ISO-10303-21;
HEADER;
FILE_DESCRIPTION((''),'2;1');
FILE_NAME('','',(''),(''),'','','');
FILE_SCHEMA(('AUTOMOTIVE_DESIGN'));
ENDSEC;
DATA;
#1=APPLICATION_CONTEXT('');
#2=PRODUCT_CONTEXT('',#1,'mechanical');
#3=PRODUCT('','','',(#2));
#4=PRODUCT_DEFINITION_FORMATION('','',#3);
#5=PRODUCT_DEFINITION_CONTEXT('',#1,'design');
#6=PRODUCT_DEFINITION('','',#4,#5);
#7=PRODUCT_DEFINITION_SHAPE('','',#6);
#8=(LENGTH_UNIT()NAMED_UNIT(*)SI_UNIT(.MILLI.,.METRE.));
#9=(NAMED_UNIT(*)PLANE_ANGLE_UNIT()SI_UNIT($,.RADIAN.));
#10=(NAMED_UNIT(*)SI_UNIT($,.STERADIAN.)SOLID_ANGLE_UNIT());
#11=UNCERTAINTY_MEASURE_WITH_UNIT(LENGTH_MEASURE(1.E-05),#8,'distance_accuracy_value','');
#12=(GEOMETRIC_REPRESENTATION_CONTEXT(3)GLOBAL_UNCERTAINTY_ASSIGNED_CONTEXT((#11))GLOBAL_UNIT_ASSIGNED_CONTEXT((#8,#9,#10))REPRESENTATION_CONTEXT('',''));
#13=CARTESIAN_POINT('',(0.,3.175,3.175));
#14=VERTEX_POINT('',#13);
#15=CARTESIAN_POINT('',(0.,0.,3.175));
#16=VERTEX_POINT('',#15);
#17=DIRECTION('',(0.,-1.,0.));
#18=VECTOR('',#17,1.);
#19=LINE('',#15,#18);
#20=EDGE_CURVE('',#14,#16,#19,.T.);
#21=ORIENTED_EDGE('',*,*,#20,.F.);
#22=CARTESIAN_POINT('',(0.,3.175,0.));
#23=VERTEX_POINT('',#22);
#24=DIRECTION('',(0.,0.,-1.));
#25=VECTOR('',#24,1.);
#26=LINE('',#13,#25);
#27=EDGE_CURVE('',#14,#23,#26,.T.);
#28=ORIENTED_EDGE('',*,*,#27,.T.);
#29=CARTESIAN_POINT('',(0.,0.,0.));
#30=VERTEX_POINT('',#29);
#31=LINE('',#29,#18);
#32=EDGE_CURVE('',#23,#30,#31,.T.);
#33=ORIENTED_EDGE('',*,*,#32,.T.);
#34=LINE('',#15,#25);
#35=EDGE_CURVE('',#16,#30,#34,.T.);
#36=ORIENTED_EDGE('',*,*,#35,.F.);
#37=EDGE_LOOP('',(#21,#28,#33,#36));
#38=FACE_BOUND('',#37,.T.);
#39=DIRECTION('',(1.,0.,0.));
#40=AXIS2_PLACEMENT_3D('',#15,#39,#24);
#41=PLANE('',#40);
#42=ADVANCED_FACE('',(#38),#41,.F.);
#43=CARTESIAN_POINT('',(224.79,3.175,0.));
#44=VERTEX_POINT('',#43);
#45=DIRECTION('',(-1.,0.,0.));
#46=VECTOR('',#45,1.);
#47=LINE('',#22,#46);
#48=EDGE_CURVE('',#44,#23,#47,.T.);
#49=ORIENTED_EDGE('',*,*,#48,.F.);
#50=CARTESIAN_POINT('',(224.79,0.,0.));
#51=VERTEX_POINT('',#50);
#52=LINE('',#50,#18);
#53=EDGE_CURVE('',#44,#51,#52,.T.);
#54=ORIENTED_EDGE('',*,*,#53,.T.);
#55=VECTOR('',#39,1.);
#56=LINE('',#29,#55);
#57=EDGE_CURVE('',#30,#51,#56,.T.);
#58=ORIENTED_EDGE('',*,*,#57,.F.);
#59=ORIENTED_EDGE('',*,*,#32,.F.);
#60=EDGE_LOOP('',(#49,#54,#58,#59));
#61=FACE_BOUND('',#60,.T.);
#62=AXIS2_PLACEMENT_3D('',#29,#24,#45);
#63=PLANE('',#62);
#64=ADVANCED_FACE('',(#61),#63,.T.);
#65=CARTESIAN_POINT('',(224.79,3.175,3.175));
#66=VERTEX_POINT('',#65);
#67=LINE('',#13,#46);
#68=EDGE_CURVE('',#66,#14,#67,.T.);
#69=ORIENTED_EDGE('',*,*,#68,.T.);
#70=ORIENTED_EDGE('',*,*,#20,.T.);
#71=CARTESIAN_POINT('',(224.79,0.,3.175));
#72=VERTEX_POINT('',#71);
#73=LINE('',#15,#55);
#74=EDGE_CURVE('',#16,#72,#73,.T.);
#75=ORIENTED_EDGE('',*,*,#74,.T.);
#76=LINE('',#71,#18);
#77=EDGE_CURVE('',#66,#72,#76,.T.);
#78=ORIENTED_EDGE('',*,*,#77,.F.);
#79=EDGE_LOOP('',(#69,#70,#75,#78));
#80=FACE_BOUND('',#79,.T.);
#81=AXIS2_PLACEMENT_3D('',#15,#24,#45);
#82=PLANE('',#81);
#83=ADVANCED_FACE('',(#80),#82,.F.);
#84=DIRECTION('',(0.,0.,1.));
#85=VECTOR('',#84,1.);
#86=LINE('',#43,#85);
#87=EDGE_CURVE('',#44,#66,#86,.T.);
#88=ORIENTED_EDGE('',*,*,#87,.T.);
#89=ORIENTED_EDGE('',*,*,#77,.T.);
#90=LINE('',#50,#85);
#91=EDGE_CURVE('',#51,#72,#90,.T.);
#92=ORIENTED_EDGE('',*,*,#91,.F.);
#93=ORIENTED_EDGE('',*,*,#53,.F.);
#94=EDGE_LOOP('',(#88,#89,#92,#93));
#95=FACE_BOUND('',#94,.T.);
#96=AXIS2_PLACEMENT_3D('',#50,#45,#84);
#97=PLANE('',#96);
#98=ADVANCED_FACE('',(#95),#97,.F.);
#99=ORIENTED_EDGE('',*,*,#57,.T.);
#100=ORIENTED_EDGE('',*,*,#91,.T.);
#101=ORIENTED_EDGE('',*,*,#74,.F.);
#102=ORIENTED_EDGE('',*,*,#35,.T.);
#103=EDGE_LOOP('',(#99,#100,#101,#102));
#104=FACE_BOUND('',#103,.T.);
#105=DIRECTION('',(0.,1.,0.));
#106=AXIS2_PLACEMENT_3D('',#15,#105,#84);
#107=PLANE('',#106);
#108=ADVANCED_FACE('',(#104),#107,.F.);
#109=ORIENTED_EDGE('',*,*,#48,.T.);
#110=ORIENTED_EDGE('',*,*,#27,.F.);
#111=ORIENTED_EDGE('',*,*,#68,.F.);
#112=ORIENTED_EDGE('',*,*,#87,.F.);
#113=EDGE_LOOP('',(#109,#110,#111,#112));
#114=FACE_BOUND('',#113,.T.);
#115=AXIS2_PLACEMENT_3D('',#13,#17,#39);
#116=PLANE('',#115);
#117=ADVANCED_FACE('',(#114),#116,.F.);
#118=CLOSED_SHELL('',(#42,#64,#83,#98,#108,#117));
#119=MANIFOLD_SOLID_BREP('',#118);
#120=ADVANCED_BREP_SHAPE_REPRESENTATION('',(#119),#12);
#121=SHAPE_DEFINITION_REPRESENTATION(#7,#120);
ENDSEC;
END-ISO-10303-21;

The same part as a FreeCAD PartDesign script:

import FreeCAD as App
import Part
import Sketcher
from FreeCAD import Vector
Q = App.Units.Quantity

doc = App.newDocument("Part")
body = doc.addObject("PartDesign::Body", "Body")

# Sketch on XY plane
sketch1 = body.newObject("Sketcher::SketchObject", "Sketch")
sketch1.AttachmentSupport = (doc.getObject("XY_Plane"), [""])
sketch1.MapMode = "FlatFace"
sketch1.addGeometry(Part.LineSegment(Vector(0, 3.2, 0), Vector(0, 0, 0)), False)
sketch1.addGeometry(Part.LineSegment(Vector(0, 0, 0), Vector(245.1, 0, 0)), False)
sketch1.addGeometry(Part.LineSegment(Vector(245.1, 0, 0), Vector(245.1, 3.2, 0)), False)
sketch1.addGeometry(Part.LineSegment(Vector(245.1, 3.2, 0), Vector(0, 3.2, 0)), False)
sketch1.addConstraint(Sketcher.Constraint("Coincident", 0, 2, 1, 1))
sketch1.addConstraint(Sketcher.Constraint("Coincident", 1, 2, 2, 1))
sketch1.addConstraint(Sketcher.Constraint("Coincident", 2, 2, 3, 1))
sketch1.addConstraint(Sketcher.Constraint("Coincident", 3, 2, 0, 1))
sketch1.addConstraint(Sketcher.Constraint("Vertical", 0))
sketch1.addConstraint(Sketcher.Constraint("Horizontal", 1))
sketch1.addConstraint(Sketcher.Constraint("Vertical", 2))
sketch1.addConstraint(Sketcher.Constraint("Horizontal", 3))
sketch1.addConstraint(Sketcher.Constraint("Coincident", 0, 2, -1, 1))
sketch1.addConstraint(Sketcher.Constraint("DistanceX", 1, 1, 1, 2, Q("9.65 in")))
sketch1.addConstraint(Sketcher.Constraint("DistanceY", 0, 2, 0, 1, Q("0.125 in")))
pad1 = body.newObject("PartDesign::Pad", "Pad")
pad1.Profile = sketch1
pad1.Length = Q("0.125 in")

# Sketch on XY plane
sketch2 = body.newObject("Sketcher::SketchObject", "Sketch001")
sketch2.AttachmentSupport = (doc.getObject("XY_Plane"), [""])
sketch2.MapMode = "FlatFace"
sketch2.AttachmentOffset = App.Placement(Vector(0, 0, 0.125 * 25.4), App.Rotation())
sketch2.addGeometry(Part.LineSegment(Vector(224.8, 3.2, 0), Vector(224.8, 0, 0)), False)
sketch2.addGeometry(Part.LineSegment(Vector(224.8, 0, 0), Vector(245.1, 0, 0)), False)
sketch2.addGeometry(Part.LineSegment(Vector(245.1, 0, 0), Vector(245.1, 3.2, 0)), False)
sketch2.addGeometry(Part.LineSegment(Vector(245.1, 3.2, 0), Vector(224.8, 3.2, 0)), False)
sketch2.addConstraint(Sketcher.Constraint("Coincident", 0, 2, 1, 1))
sketch2.addConstraint(Sketcher.Constraint("Coincident", 1, 2, 2, 1))
sketch2.addConstraint(Sketcher.Constraint("Coincident", 2, 2, 3, 1))
sketch2.addConstraint(Sketcher.Constraint("Coincident", 3, 2, 0, 1))
sketch2.addConstraint(Sketcher.Constraint("Vertical", 0))
sketch2.addConstraint(Sketcher.Constraint("Horizontal", 1))
sketch2.addConstraint(Sketcher.Constraint("Vertical", 2))
sketch2.addConstraint(Sketcher.Constraint("Horizontal", 3))
sketch2.addConstraint(Sketcher.Constraint("PointOnObject", 0, 2, -1))
sketch2.addConstraint(Sketcher.Constraint("DistanceX", 1, 1, 1, 2, Q("0.8 in")))
sketch2.addConstraint(Sketcher.Constraint("DistanceY", 0, 2, 0, 1, Q("0.125 in")))
sketch2.addConstraint(Sketcher.Constraint("DistanceX", -1, 1, 0, 2, Q("8.85 in")))
pocket1 = body.newObject("PartDesign::Pocket", "Pocket")
pocket1.Profile = sketch2
pocket1.Type = "ThroughAll"

doc.recompute()
